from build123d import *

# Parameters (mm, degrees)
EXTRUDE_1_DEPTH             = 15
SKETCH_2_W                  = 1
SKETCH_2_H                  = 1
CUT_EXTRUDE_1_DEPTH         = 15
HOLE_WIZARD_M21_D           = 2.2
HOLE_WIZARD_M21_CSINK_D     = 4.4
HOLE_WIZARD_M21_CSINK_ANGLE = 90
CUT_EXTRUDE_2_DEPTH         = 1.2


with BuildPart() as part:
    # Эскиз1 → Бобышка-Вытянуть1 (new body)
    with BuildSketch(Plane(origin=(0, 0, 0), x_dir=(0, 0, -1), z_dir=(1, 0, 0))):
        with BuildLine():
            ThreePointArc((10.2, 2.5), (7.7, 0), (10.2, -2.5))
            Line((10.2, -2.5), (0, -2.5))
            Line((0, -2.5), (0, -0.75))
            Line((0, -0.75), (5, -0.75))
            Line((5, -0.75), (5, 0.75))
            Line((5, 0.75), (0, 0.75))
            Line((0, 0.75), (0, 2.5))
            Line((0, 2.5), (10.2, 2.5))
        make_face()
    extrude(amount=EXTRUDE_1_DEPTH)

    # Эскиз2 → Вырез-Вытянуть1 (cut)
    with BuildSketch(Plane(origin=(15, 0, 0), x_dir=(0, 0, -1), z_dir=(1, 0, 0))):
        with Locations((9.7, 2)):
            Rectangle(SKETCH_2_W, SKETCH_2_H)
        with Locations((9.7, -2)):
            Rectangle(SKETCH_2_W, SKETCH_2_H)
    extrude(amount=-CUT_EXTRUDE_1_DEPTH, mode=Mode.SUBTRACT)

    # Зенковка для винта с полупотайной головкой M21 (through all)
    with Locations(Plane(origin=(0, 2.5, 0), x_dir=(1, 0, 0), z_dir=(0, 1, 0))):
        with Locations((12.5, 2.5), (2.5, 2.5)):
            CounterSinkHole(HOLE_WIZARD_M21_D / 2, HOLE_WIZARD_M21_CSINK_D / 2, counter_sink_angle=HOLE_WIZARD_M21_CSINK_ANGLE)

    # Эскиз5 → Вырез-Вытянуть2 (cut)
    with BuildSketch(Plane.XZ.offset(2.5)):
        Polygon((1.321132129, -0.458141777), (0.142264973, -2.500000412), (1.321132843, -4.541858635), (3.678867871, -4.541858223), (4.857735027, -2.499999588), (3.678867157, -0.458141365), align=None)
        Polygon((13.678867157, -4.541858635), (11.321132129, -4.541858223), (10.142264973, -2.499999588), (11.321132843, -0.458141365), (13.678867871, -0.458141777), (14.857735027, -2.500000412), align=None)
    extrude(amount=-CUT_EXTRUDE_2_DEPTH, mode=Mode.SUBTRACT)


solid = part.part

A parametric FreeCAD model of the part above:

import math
import FreeCAD as App
import Part
import Sketcher

V = App.Vector
Q = App.Units.Quantity


def add_polygon(sketch, points):
    """Adds a closed chain of lines whose ends are joined by coincident constraints."""
    first, n = sketch.GeometryCount, len(points)
    for a, b in zip(points, points[1:] + points[:1]):
        sketch.addGeometry(Part.LineSegment(App.Vector(*a, 0), App.Vector(*b, 0)), False)
    for i in range(n):
        sketch.addConstraint(Sketcher.Constraint("Coincident", first + i, 2, first + (i + 1) % n, 1))

doc = App.newDocument("Part")
body = doc.addObject("PartDesign::Body", "Body")

# Sketch on YZ plane
sketch1 = doc.addObject("Sketcher::SketchObject", "Sketch")
body.addObject(sketch1)
sketch1.AttachmentSupport = (doc.YZ_Plane, [""])
sketch1.MapMode = "FlatFace"
sketch1.addGeometry([
    Part.ArcOfCircle(Part.Circle(V(0, -10.2, 0), V(0, 0, 1), 2.5), math.radians(0), math.radians(180)),  # 0
    Part.LineSegment(V(2.5, -10.2, 0), V(2.5, 0, 0)),  # 1
    Part.LineSegment(V(2.5, 0, 0), V(0.8, 0, 0)),  # 2
    Part.LineSegment(V(0.8, 0, 0), V(0.8, -5, 0)),  # 3
    Part.LineSegment(V(0.8, -5, 0), V(-0.8, -5, 0)),  # 4
    Part.LineSegment(V(-0.8, -5, 0), V(-0.8, 0, 0)),  # 5
    Part.LineSegment(V(-0.8, 0, 0), V(-2.5, 0, 0)),  # 6
    Part.LineSegment(V(-2.5, 0, 0), V(-2.5, -10.2, 0)),  # 7
], False)
sketch1.addConstraint([
    Sketcher.Constraint("Tangent", 0, 1, 1, 1),
    Sketcher.Constraint("Coincident", 1, 2, 2, 1),
    Sketcher.Constraint("Coincident", 2, 2, 3, 1),
    Sketcher.Constraint("Coincident", 3, 2, 4, 1),
    Sketcher.Constraint("Coincident", 4, 2, 5, 1),
    Sketcher.Constraint("Coincident", 5, 2, 6, 1),
    Sketcher.Constraint("Coincident", 6, 2, 7, 1),
    Sketcher.Constraint("Tangent", 7, 2, 0, 2),
    Sketcher.Constraint("Vertical", 1),
    Sketcher.Constraint("Horizontal", 2),
    Sketcher.Constraint("Vertical", 3),
    Sketcher.Constraint("Horizontal", 4),
    Sketcher.Constraint("Vertical", 5),
    Sketcher.Constraint("Horizontal", 6),
    Sketcher.Constraint("Vertical", 7),
    Sketcher.Constraint("Symmetric", 2, 2, 5, 2, -1, 1),
    Sketcher.Constraint("Symmetric", 1, 2, 6, 2, -2),
    Sketcher.Constraint("Radius", 0, 2.5),
    Sketcher.Constraint("DistanceY", 3, 2, 3, 1, 5.0),
    Sketcher.Constraint("DistanceX", 4, 2, 4, 1, 1.5),
    Sketcher.Constraint("DistanceY", 1, 1, 1, 2, 10.2),
])
pad1 = doc.addObject("PartDesign::Pad", "Pad")
body.addObject(pad1)
pad1.Profile = sketch1
pad1.Length = 15

# Sketch on YZ plane
sketch2 = doc.addObject("Sketcher::SketchObject", "Sketch001")
body.addObject(sketch2)
sketch2.AttachmentSupport = (doc.YZ_Plane, [""])
sketch2.MapMode = "FlatFace"
sketch2.AttachmentOffset = App.Placement(V(0, 0, 15), App.Rotation())
add_polygon(sketch2, [(2.5, -9.2), (1.5, -9.2), (1.5, -10.2), (2.5, -10.2)])  # lines 0-3
add_polygon(sketch2, [(-1.5, -9.2), (-2.5, -9.2), (-2.5, -10.2), (-1.5, -10.2)])  # lines 4-7
sketch2.addConstraint([
    Sketcher.Constraint("Horizontal", 0),
    Sketcher.Constraint("Vertical", 1),
    Sketcher.Constraint("Horizontal", 2),
    Sketcher.Constraint("Vertical", 3),
    Sketcher.Constraint("Horizontal", 4),
    Sketcher.Constraint("Vertical", 5),
    Sketcher.Constraint("Horizontal", 6),
    Sketcher.Constraint("Vertical", 7),
    Sketcher.Constraint("Symmetric", 3, 2, 4, 2, -2),
    Sketcher.Constraint("Symmetric", 1, 2, 6, 2, -2),
    Sketcher.Constraint("Equal", 6, 1),
    Sketcher.Constraint("DistanceX", 0, 2, 0, 1, 1.0),
    Sketcher.Constraint("DistanceX", 4, 2, 0, 2, 4.0),
    Sketcher.Constraint("DistanceY", 0, 2, -1, 1, 9.2),
])
pocket1 = doc.addObject("PartDesign::Pocket", "Pocket")
body.addObject(pocket1)
pocket1.Profile = sketch2
pocket1.Length = 15

# Sketch on XZ plane
sketch3 = doc.addObject("Sketcher::SketchObject", "Sketch002")
body.addObject(sketch3)
sketch3.AttachmentSupport = (doc.XZ_Plane, [""])
sketch3.MapMode = "FlatFace"
sketch3.AttachmentOffset = App.Placement(V(0, 0, -2.5), App.Rotation())
sketch3.addGeometry([
    Part.Circle(V(12.5, -2.5, 0), V(0, 0, 1), 1.1),
    Part.Circle(V(2.5, -2.5, 0), V(0, 0, 1), 1.1),
], False)
sketch3.addConstraint([
    Sketcher.Constraint("Equal", 0, 1),
    Sketcher.Constraint("Horizontal", 0, 3, 1, 3),
    Sketcher.Constraint("Diameter", 0, 2.2),
    Sketcher.Constraint("DistanceX", 1, 3, 0, 3, 10.0),
    Sketcher.Constraint("DistanceX", -1, 1, 0, 3, 12.5),
    Sketcher.Constraint("DistanceY", 0, 3, -1, 1, 2.5),
])
doc.recompute()
hole = doc.addObject("PartDesign::Hole", "Hole")
body.addObject(hole)
hole.Profile = sketch3
hole.ThreadType = "None"
hole.Diameter = 2.2
hole.DepthType = "ThroughAll"
hole.HoleCutType = "Countersink"
hole.HoleCutDiameter = 4.4
hole.HoleCutCountersinkAngle = 90
hole.Reversed = True

# Sketch on XZ plane
sketch4 = doc.addObject("Sketcher::SketchObject", "Sketch003")
body.addObject(sketch4)
sketch4.AttachmentSupport = (doc.XZ_Plane, [""])
sketch4.MapMode = "FlatFace"
sketch4.AttachmentOffset = App.Placement(V(0, 0, 2.5), App.Rotation())
add_polygon(sketch4, [(1.3, -0.5), (0.1, -2.5), (1.3, -4.5), (3.7, -4.5), (4.9, -2.5), (3.7, -0.5)])  # lines 0-5
add_polygon(sketch4, [(11.3, -4.5), (13.7, -4.5), (14.9, -2.5), (13.7, -0.5), (11.3, -0.5), (10.1, -2.5)])  # lines 6-11
sketch4.addConstraint([
    Sketcher.Constraint("Horizontal", 2),
    Sketcher.Constraint("Horizontal", 5),
    Sketcher.Constraint("Horizontal", 6),
    Sketcher.Constraint("Horizontal", 9),
    Sketcher.Constraint("Parallel", 0, 3),
    Sketcher.Constraint("Parallel", 1, 4),
    Sketcher.Constraint("Parallel", 3, 7),
    Sketcher.Constraint("Parallel", 4, 8),
    Sketcher.Constraint("Parallel", 7, 10),
    Sketcher.Constraint("Parallel", 8, 11),
    Sketcher.Constraint("Horizontal", 0, 2, 3, 2),
    Sketcher.Constraint("Horizontal", 2, 2, 6, 2),
    Sketcher.Constraint("Horizontal", 3, 2, 7, 2),
    Sketcher.Constraint("Horizontal", 5, 2, 8, 2),
    Sketcher.Constraint("Horizontal", 7, 2, 10, 2),
    Sketcher.Constraint("Vertical", 2, 2, 4, 2),
    Sketcher.Constraint("Vertical", 1, 2, 5, 2),
    Sketcher.Constraint("Equal", 5, 6),
    Sketcher.Constraint("Angle", 0, Q("-119.99999 deg")),
    Sketcher.Constraint("DistanceX", 2, 2, 6, 2, 9.999999),
    Sketcher.Constraint("DistanceY", 0, 2, -1, 1, 2.5),
    Sketcher.Constraint("DistanceX", 2, 1, 2, 2, 2.357735),
    Sketcher.Constraint("DistanceY", 1, 2, -1, 1, 4.541859),
    Sketcher.Constraint("DistanceX", -1, 1, 0, 2, 0.142265),
])
pocket2 = doc.addObject("PartDesign::Pocket", "Pocket001")
body.addObject(pocket2)
pocket2.Profile = sketch4
pocket2.Length = 1.2

doc.recompute()
